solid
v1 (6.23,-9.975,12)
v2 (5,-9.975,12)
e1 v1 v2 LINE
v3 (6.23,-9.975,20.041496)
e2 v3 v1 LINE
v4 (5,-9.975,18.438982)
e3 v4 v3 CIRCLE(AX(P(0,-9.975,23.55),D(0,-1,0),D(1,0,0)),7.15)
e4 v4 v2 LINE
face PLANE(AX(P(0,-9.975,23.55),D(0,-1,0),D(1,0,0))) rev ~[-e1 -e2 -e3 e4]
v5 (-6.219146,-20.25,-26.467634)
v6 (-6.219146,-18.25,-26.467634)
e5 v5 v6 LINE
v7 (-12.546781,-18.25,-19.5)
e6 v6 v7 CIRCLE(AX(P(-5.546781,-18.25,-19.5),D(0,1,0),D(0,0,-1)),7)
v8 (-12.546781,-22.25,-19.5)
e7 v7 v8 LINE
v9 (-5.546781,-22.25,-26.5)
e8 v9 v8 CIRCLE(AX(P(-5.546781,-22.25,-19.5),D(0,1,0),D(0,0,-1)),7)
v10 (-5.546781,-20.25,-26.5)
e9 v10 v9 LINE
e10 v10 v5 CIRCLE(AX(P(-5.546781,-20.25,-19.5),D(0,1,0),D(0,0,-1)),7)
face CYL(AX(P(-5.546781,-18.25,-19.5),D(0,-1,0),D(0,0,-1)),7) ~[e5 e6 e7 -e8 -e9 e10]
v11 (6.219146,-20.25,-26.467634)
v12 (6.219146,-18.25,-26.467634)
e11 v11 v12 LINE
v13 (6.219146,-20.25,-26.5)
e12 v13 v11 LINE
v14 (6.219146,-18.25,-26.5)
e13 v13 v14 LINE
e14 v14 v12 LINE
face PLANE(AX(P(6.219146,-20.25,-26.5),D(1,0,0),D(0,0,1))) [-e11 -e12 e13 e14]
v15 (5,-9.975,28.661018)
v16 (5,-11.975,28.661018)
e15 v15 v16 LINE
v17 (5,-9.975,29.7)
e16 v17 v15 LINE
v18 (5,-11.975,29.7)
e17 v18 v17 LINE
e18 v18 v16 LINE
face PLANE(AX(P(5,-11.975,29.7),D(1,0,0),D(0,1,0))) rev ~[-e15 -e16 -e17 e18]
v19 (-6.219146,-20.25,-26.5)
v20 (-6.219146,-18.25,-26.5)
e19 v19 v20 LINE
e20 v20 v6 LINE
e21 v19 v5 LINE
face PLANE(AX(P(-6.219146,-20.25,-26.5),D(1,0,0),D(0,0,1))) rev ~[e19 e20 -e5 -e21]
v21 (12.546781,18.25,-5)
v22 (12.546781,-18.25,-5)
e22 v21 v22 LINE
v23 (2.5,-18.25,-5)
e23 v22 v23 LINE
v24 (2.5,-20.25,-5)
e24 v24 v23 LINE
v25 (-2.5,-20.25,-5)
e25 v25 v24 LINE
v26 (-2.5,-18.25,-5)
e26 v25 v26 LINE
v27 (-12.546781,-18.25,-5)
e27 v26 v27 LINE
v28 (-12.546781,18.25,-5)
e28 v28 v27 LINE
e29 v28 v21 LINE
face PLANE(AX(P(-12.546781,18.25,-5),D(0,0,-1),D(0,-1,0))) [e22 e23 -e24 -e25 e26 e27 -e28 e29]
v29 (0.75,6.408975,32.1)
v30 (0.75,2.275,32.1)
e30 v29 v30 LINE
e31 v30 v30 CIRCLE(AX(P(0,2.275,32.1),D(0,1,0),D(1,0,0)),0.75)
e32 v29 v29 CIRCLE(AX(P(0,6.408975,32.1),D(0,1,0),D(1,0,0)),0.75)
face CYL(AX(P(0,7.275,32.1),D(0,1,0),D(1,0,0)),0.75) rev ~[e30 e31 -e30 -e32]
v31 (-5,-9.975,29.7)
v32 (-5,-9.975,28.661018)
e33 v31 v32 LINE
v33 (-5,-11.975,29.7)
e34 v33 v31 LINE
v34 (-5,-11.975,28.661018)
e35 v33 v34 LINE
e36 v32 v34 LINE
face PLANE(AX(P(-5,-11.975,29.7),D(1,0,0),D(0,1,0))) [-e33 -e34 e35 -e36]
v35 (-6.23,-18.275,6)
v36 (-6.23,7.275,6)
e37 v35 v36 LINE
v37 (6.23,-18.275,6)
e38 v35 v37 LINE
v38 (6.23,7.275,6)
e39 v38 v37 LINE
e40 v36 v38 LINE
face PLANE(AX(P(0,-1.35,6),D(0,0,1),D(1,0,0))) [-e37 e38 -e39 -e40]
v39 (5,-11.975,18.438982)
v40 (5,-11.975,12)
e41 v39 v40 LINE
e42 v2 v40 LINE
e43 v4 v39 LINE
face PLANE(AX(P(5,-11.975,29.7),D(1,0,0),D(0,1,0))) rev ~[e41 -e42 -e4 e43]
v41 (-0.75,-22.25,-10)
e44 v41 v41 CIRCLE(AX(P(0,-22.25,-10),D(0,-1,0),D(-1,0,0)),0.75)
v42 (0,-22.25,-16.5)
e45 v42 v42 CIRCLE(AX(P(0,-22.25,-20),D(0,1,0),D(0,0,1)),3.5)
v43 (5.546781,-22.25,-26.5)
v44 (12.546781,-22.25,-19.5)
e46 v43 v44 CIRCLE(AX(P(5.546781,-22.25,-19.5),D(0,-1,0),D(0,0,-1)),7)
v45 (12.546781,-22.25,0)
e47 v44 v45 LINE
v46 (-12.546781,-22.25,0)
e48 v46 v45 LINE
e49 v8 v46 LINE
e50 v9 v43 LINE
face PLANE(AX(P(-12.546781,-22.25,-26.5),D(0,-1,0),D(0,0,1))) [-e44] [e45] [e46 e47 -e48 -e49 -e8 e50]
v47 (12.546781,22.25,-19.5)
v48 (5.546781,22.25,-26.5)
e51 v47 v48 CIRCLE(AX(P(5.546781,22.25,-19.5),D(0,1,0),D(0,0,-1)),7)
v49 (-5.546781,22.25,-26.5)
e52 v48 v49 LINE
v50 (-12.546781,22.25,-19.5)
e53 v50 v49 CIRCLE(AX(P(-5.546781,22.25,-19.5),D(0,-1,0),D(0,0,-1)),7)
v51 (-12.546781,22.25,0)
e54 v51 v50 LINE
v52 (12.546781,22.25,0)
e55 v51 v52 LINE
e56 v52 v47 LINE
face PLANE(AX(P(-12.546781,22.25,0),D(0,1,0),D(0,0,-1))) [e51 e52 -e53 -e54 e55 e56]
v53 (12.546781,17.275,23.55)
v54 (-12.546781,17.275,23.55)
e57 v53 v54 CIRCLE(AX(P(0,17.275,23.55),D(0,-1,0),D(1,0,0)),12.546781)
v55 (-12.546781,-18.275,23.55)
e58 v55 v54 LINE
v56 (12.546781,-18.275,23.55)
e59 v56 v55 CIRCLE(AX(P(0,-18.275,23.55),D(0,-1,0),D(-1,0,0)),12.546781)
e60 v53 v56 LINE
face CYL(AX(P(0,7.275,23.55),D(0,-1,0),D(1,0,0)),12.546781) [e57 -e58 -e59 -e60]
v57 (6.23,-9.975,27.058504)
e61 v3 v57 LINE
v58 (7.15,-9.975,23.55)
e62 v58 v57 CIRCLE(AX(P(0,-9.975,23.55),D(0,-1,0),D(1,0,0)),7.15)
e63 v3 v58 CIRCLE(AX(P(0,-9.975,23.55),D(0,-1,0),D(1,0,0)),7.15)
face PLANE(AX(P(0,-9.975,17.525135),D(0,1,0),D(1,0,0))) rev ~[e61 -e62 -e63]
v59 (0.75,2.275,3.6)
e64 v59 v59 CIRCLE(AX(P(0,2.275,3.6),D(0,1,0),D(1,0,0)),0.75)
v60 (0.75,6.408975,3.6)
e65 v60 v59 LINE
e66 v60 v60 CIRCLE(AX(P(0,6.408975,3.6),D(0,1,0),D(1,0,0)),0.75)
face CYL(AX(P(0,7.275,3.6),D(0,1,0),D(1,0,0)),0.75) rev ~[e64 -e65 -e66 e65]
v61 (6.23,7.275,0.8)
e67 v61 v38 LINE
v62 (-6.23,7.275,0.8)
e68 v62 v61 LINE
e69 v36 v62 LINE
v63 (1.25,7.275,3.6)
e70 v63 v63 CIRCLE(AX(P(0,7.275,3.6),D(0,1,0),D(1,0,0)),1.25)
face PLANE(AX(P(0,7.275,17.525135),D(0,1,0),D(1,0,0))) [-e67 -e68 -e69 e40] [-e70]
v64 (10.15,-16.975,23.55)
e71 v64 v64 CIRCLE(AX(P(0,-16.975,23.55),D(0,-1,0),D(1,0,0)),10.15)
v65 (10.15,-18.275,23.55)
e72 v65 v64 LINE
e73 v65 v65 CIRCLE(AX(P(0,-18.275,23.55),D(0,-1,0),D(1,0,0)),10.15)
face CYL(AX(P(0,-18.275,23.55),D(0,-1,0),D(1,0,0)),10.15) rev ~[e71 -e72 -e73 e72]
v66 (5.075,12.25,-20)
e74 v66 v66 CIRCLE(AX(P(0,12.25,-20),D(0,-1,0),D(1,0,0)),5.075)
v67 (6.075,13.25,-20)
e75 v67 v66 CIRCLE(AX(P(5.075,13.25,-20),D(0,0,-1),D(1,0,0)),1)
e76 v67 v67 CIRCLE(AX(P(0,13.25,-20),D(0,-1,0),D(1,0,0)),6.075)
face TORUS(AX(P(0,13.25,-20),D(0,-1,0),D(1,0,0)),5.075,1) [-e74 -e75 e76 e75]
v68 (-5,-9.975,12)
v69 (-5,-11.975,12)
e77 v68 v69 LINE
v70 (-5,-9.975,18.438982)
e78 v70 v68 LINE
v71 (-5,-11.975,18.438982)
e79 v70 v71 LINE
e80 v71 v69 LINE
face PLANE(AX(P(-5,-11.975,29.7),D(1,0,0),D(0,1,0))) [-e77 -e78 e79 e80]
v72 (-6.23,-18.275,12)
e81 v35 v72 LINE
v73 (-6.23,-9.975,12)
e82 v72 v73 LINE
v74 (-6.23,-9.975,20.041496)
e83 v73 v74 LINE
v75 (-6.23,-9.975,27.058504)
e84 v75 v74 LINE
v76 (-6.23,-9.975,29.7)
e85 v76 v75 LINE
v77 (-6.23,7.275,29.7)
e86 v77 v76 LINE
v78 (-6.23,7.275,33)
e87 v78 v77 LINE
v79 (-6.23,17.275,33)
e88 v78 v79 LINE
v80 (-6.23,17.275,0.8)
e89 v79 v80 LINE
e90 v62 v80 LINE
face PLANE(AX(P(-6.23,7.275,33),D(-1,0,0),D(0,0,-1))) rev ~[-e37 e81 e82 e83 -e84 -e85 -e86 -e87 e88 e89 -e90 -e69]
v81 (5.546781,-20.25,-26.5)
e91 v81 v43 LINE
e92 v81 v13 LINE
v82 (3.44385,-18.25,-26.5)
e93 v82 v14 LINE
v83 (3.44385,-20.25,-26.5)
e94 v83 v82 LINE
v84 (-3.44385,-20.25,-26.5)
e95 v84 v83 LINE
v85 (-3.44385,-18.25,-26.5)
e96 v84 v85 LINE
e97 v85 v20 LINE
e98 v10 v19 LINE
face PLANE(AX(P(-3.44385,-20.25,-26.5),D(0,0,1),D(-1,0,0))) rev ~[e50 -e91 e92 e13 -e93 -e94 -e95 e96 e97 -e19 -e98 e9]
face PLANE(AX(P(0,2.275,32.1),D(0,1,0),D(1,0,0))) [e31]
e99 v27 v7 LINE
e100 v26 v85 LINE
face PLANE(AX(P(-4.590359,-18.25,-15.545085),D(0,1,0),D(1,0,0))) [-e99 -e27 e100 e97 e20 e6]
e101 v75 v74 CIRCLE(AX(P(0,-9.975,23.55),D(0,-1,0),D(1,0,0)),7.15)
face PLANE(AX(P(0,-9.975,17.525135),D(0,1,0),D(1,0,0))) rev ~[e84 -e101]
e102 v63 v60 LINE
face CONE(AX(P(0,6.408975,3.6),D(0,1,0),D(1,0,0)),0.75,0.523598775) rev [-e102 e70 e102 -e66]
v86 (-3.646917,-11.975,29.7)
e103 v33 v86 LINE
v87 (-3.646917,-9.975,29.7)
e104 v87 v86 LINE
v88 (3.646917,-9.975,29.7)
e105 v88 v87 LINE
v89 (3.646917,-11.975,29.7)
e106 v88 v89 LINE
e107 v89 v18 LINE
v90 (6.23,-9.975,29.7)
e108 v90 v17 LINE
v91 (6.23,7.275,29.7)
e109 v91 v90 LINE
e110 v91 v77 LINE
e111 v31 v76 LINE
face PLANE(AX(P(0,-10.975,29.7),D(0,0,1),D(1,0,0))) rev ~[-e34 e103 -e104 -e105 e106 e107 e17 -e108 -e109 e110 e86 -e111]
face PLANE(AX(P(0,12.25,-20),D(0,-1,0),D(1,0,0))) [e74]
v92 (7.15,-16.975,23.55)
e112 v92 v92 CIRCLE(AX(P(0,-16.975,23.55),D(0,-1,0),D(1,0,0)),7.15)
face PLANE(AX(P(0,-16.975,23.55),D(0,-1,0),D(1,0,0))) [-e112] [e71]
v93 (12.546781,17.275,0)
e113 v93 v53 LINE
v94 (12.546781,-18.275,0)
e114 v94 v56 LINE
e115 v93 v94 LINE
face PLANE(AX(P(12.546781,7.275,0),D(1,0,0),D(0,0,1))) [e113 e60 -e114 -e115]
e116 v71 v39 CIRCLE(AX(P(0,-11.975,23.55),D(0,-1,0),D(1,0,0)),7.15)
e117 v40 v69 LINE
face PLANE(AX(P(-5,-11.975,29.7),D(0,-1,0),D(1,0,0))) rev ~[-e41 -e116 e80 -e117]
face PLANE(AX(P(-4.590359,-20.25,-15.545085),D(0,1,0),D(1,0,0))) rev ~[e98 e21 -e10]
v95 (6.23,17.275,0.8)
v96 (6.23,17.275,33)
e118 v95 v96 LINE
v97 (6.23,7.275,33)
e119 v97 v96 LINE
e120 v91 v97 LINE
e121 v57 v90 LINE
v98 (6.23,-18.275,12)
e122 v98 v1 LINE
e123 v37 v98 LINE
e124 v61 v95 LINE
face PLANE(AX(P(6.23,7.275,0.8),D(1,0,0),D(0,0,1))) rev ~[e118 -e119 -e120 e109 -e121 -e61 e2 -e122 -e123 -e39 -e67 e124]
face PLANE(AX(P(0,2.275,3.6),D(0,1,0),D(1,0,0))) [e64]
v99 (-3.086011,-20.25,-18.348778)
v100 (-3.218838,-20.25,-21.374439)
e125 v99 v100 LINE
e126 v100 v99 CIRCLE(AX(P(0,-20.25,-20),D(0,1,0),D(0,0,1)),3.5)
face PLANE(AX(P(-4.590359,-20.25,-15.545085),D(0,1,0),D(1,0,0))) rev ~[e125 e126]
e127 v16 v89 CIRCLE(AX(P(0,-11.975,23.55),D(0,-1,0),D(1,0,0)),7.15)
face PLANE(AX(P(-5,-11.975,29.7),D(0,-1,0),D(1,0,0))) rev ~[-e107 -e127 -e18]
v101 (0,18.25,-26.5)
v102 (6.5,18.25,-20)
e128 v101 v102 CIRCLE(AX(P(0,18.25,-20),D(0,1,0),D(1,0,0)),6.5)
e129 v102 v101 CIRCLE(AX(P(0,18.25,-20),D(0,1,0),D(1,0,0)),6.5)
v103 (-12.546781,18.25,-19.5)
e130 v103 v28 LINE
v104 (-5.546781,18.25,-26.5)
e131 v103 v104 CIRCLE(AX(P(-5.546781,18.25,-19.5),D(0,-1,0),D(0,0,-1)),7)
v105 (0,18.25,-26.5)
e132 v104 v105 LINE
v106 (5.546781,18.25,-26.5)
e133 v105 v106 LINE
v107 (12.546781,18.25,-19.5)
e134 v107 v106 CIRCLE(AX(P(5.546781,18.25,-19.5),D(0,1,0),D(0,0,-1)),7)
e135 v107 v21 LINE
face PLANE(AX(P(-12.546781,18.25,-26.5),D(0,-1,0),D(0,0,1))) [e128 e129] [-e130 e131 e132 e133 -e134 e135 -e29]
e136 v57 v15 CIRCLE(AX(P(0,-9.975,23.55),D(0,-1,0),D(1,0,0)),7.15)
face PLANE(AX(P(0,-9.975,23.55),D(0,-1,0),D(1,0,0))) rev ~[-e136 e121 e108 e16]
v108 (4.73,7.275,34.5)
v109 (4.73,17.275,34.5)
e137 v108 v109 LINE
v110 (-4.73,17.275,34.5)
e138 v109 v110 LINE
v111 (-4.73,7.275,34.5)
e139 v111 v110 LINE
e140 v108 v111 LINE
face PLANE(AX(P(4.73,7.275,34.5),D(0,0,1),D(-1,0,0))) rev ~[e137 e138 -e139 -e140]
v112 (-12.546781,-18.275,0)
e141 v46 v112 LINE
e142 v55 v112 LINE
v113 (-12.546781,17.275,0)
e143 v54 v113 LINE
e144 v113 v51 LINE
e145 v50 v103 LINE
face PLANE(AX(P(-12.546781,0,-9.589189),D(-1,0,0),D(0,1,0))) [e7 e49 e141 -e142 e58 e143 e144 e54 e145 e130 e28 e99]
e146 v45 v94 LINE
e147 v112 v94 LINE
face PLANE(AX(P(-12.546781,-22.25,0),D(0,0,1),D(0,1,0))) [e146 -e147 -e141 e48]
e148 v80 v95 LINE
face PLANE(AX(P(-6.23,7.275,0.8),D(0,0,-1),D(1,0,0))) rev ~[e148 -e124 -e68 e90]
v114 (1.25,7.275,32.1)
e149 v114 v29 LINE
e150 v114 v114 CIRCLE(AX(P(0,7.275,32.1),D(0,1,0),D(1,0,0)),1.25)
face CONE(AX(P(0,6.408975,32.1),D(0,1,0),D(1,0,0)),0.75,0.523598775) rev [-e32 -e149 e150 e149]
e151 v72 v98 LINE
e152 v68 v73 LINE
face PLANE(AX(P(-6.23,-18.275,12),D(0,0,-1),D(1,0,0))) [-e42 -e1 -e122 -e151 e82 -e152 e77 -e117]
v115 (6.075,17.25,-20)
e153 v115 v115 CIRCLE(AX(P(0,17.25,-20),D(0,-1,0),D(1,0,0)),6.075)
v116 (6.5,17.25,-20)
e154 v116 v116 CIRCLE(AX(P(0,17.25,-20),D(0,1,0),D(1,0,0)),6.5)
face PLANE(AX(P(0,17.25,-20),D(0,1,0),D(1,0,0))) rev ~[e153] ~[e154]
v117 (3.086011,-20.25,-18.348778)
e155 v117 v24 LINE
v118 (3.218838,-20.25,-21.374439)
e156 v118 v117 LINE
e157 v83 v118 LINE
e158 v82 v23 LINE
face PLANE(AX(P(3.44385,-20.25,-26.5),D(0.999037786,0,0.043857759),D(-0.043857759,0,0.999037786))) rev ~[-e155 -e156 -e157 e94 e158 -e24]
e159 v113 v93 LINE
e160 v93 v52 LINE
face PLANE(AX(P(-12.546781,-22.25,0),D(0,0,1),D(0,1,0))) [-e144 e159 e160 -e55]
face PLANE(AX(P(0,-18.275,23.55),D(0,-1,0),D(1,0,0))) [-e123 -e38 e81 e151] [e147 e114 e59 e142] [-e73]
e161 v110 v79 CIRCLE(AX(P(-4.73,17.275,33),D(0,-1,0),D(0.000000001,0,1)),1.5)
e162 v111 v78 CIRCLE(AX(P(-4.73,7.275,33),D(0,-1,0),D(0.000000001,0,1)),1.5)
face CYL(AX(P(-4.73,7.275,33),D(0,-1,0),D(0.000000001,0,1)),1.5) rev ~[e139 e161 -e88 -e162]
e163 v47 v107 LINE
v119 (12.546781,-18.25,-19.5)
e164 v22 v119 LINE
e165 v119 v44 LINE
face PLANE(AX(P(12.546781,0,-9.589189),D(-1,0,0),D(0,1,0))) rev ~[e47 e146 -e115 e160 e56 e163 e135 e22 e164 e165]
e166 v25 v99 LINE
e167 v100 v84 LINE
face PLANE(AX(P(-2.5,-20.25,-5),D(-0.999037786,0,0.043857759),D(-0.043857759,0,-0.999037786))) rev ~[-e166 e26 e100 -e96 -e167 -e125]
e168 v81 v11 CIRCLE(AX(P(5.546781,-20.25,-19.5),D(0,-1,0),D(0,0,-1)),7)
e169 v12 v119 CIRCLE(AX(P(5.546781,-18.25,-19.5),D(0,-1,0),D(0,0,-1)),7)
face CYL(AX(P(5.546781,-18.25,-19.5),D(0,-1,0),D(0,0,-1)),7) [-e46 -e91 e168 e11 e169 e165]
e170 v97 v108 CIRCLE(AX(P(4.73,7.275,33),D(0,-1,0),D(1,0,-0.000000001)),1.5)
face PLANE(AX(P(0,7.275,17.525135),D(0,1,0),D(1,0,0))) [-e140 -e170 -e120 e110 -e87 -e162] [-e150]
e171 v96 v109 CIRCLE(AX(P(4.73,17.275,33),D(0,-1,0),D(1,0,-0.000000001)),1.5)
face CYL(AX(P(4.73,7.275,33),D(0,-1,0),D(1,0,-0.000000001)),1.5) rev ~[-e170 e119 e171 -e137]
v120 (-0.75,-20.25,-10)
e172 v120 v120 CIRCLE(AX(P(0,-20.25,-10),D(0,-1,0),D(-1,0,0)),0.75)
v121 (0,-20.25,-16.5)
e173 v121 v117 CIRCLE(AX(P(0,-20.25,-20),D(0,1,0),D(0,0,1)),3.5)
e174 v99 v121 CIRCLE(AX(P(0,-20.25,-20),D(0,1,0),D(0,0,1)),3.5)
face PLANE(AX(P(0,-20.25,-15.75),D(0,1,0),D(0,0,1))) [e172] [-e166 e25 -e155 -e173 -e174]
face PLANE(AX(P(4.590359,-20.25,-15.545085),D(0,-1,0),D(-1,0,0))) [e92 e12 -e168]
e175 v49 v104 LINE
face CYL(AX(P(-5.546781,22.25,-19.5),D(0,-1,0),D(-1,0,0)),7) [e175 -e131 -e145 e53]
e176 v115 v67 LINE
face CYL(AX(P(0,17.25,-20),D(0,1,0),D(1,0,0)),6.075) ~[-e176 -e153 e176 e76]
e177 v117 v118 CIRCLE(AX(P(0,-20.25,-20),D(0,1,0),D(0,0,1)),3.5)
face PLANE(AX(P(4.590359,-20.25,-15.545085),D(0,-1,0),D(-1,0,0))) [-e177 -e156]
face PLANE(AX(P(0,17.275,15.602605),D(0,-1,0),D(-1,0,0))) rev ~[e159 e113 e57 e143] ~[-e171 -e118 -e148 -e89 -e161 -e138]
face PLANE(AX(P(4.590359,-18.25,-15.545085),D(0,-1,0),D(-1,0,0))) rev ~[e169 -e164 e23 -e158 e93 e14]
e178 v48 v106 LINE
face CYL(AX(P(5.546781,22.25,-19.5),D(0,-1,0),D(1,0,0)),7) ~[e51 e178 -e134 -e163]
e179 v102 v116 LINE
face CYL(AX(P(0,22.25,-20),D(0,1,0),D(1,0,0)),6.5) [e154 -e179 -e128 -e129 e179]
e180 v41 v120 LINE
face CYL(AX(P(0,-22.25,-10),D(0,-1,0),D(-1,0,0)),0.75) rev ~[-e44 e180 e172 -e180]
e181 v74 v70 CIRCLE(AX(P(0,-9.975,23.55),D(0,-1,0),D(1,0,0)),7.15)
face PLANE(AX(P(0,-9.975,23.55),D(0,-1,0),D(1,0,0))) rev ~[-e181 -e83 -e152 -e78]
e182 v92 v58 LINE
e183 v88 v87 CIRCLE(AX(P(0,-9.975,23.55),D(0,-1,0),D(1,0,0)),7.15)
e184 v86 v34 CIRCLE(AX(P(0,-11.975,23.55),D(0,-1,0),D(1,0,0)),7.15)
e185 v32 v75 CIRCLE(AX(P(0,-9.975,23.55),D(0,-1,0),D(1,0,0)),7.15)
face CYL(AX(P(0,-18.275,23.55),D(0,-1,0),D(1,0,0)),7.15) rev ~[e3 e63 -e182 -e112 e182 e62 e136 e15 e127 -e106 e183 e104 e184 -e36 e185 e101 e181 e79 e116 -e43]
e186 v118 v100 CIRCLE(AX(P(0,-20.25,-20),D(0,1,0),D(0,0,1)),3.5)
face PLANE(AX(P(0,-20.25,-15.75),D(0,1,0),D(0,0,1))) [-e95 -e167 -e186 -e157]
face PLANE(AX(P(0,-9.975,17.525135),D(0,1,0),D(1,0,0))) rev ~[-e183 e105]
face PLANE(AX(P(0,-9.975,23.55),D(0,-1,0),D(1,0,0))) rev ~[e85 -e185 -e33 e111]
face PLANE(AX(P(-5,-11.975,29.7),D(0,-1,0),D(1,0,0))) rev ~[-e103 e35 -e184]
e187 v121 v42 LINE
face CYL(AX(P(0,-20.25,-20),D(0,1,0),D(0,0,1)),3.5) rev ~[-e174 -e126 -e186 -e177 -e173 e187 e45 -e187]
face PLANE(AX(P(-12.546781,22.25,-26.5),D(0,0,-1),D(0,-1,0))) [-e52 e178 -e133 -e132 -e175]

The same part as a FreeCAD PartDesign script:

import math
import FreeCAD as App
import Part
import Sketcher

V = App.Vector


def edges_at(feature, points):
    """Names of the edges that pass closest to the given points."""
    edges = feature.Shape.Edges
    near = lambda p: min(range(len(edges)), key=lambda i: edges[i].distToShape(Part.Vertex(*p))[0])
    return sorted({f"Edge{near(p) + 1}" for p in points})


def add_polygon(sketch, points):
    """Adds a closed chain of lines whose ends are joined by coincident constraints."""
    first, n = sketch.GeometryCount, len(points)
    for a, b in zip(points, points[1:] + points[:1]):
        sketch.addGeometry(Part.LineSegment(App.Vector(*a, 0), App.Vector(*b, 0)), False)
    for i in range(n):
        sketch.addConstraint(Sketcher.Constraint("Coincident", first + i, 2, first + (i + 1) % n, 1))

doc = App.newDocument("Part")
body = doc.addObject("PartDesign::Body", "Body")

# Sketch on XY plane
sketch1 = doc.addObject("Sketcher::SketchObject", "Sketch")
body.addObject(sketch1)
sketch1.AttachmentSupport = (doc.XY_Plane, [""])
sketch1.MapMode = "FlatFace"
add_polygon(sketch1, [(-6, 7), (-6, -10), (6, -10), (6, 7)])  # lines 0-3
sketch1.addConstraint([
    Sketcher.Constraint("Vertical", 0),
    Sketcher.Constraint("Horizontal", 1),
    Sketcher.Constraint("Vertical", 2),
    Sketcher.Constraint("Horizontal", 3),
    Sketcher.Constraint("DistanceX", 1, 1, 1, 2, 12.46),
    Sketcher.Constraint("DistanceY", 0, 2, 0, 1, 17.25),
    Sketcher.Constraint("DistanceX", 0, 2, -1, 1, 6.23),
    Sketcher.Constraint("DistanceY", 0, 2, -1, 1, 9.975),
])
pad1 = doc.addObject("PartDesign::Pad", "Pad")
body.addObject(pad1)
pad1.Profile = sketch1
pad1.Length = 6
body2 = doc.addObject("PartDesign::Body", "Body001")

# Sketch on XZ plane
sketch2 = doc.addObject("Sketcher::SketchObject", "Sketch001")
body2.addObject(sketch2)
sketch2.AttachmentSupport = (doc.getObject("XZ_Plane001"), [""])
sketch2.MapMode = "FlatFace"
sketch2.AttachmentOffset = App.Placement(V(0, 0, 9.975), App.Rotation())
sketch2.addGeometry([
    Part.Circle(V(0, 24, 0), V(0, 0, 1), 13),
    Part.Circle(V(0, 24, 0), V(0, 0, 1), 11),
], False)
sketch2.addConstraint([
    Sketcher.Constraint("Coincident", 1, 3, 0, 3),
    Sketcher.Constraint("PointOnObject", 0, 3, -2),
    Sketcher.Constraint("Diameter", 1, 22.3),
    Sketcher.Constraint("DistanceY", -1, 1, 0, 3, 23.55),
    Sketcher.Constraint("Diameter", 0, 25.093562),
])
pad2 = doc.addObject("PartDesign::Pad", "Pad001")
body2.addObject(pad2)
pad2.Profile = sketch2
pad2.Type = "TwoLengths"
pad2.Length = 8.3
pad2.Length2 = 17.25
body.AllowCompound = True
doc.recompute()

boolean = doc.addObject("PartDesign::Boolean", "Boolean")
body.addObject(boolean)
boolean.Type = "Fuse"
boolean.addObjects([body2])

# Sketch on XZ plane
sketch3 = doc.addObject("Sketcher::SketchObject", "Sketch002")
body.addObject(sketch3)
sketch3.AttachmentSupport = (doc.XZ_Plane, [""])
sketch3.MapMode = "FlatFace"
sketch3.AttachmentOffset = App.Placement(V(0, 0, -7.275), App.Rotation())
sketch3.addGeometry([
    Part.LineSegment(V(13, 24, 0), V(13, 0, 0)),  # 0
    Part.LineSegment(V(13, 0, 0), V(6, 0, 0)),  # 1
    Part.LineSegment(V(6, 0, 0), V(6, 30, 0)),  # 2
    Part.LineSegment(V(6, 30, 0), V(-6, 30, 0)),  # 3
    Part.LineSegment(V(-6, 30, 0), V(-6, 0, 0)),  # 4
    Part.LineSegment(V(-6, 0, 0), V(-13, 0, 0)),  # 5
    Part.LineSegment(V(-13, 0, 0), V(-13, 24, 0)),  # 6
    Part.ArcOfCircle(Part.Circle(V(0, 24, 0), V(0, 0, 1), 13), math.radians(0), math.radians(180)),  # 7
], False)
sketch3.addConstraint([
    Sketcher.Constraint("Coincident", 0, 2, 1, 1),
    Sketcher.Constraint("Coincident", 1, 2, 2, 1),
    Sketcher.Constraint("Coincident", 2, 2, 3, 1),
    Sketcher.Constraint("Coincident", 3, 2, 4, 1),
    Sketcher.Constraint("Coincident", 4, 2, 5, 1),
    Sketcher.Constraint("Coincident", 5, 2, 6, 1),
    Sketcher.Constraint("Tangent", 6, 2, 7, 2),
    Sketcher.Constraint("Tangent", 7, 1, 0, 1),
    Sketcher.Constraint("Vertical", 0),
    Sketcher.Constraint("Horizontal", 1),
    Sketcher.Constraint("Vertical", 2),
    Sketcher.Constraint("Horizontal", 3),
    Sketcher.Constraint("Vertical", 4),
    Sketcher.Constraint("Horizontal", 5),
    Sketcher.Constraint("Vertical", 6),
    Sketcher.Constraint("Symmetric", 1, 2, 4, 2, -1, 1),
    Sketcher.Constraint("Symmetric", 0, 2, 5, 2, -2),
    Sketcher.Constraint("DistanceY", 2, 1, 2, 2, 29.7),
    Sketcher.Constraint("DistanceX", 3, 2, 3, 1, 12.46),
    Sketcher.Constraint("DistanceY", 0, 2, 0, 1, 23.55),
    Sketcher.Constraint("Radius", 7, 12.546781),
])
pad3 = doc.addObject("PartDesign::Pad", "Pad002")
body.addObject(pad3)
pad3.Profile = sketch3
pad3.Length = 17.25

# Sketch on XZ plane
sketch4 = doc.addObject("Sketcher::SketchObject", "Sketch003")
body.addObject(sketch4)
sketch4.AttachmentSupport = (doc.XZ_Plane, [""])
sketch4.MapMode = "FlatFace"
sketch4.AttachmentOffset = App.Placement(V(0, 0, -7.275), App.Rotation())
sketch4.addGeometry([
    Part.Circle(V(0, 3.6, 0), V(0, 0, 1), 0.8),
    Part.Circle(V(0, 32.1, 0), V(0, 0, 1), 0.8),
], False)
sketch4.addConstraint([
    Sketcher.Constraint("Equal", 0, 1),
    Sketcher.Constraint("PointOnObject", 0, 3, -2),
    Sketcher.Constraint("PointOnObject", 1, 3, -2),
    Sketcher.Constraint("Diameter", 0, 1.5),
    Sketcher.Constraint("DistanceY", -1, 1, 0, 3, 3.6),
    Sketcher.Constraint("DistanceY", -1, 1, 1, 3, 32.1),
])
pocket1 = doc.addObject("PartDesign::Pocket", "Pocket")
body.addObject(pocket1)
pocket1.Profile = sketch4
pocket1.Length = 5
pocket1.Reversed = True
doc.recompute()

chamfer = doc.addObject("PartDesign::Chamfer", "Chamfer")
body.addObject(chamfer)
chamfer.Base = (pocket1, edges_at(pocket1, [(-0.75, 7.275, 3.6), (-0.75, 7.275, 32.1)]))
chamfer.ChamferType = "Two distances"
chamfer.Size = 0.5
chamfer.Size2 = 0.866025

# Sketch on XZ plane
sketch5 = doc.addObject("Sketcher::SketchObject", "Sketch004")
body.addObject(sketch5)
sketch5.AttachmentSupport = (doc.XZ_Plane, [""])
sketch5.MapMode = "FlatFace"
sketch5.AttachmentOffset = App.Placement(V(0, 0, -7.275), App.Rotation())
add_polygon(sketch5, [(-6, 6), (-6, 30), (6, 30), (6, 6)])  # lines 0-3
sketch5.addConstraint([
    Sketcher.Constraint("Vertical", 0),
    Sketcher.Constraint("Horizontal", 1),
    Sketcher.Constraint("Vertical", 2),
    Sketcher.Constraint("Horizontal", 3),
    Sketcher.Constraint("DistanceY", 0, 1, 0, 2, 23.7),
    Sketcher.Constraint("DistanceY", -1, 1, 2, 2, 6.0),
    Sketcher.Constraint("DistanceX", 1, 1, 1, 2, 12.46),
    Sketcher.Constraint("DistanceX", 0, 2, -1, 1, 6.23),
])
pocket2 = doc.addObject("PartDesign::Pocket", "Pocket001")
body.addObject(pocket2)
pocket2.Profile = sketch5
pocket2.Length = 17.25
pocket2.Reversed = True

# Sketch on XZ plane
sketch6 = doc.addObject("Sketcher::SketchObject", "Sketch005")
body.addObject(sketch6)
sketch6.AttachmentSupport = (doc.XZ_Plane, [""])
sketch6.MapMode = "FlatFace"
sketch6.AttachmentOffset = App.Placement(V(0, 0, 18.275), App.Rotation())
sketch6.addGeometry([
    Part.LineSegment(V(-13, 24, 0), V(-13, 0, 0)),
    Part.LineSegment(V(-13, 0, 0), V(13, 0, 0)),
    Part.LineSegment(V(13, 0, 0), V(13, 24, 0)),
    Part.ArcOfCircle(Part.Circle(V(0, 24, 0), V(0, 0, 1), 13), math.radians(180), math.radians(360)),
], False)
sketch6.addConstraint([
    Sketcher.Constraint("Coincident", 0, 2, 1, 1),
    Sketcher.Constraint("Coincident", 1, 2, 2, 1),
    Sketcher.Constraint("Tangent", 2, 2, 3, 2),
    Sketcher.Constraint("Tangent", 3, 1, 0, 1),
    Sketcher.Constraint("Vertical", 0),
    Sketcher.Constraint("Horizontal", 1),
    Sketcher.Constraint("Vertical", 2),
    Sketcher.Constraint("Symmetric", 0, 2, 1, 2, -1, 1),
    Sketcher.Constraint("DistanceY", 0, 2, 0, 1, 23.55),
    Sketcher.Constraint("Radius", 3, 12.546781),
])
pad4 = doc.addObject("PartDesign::Pad", "Pad003")
body.addObject(pad4)
pad4.Profile = sketch6
pad4.Length = 8.3
pad4.Reversed = True

# Sketch on XZ plane
sketch7 = doc.addObject("Sketcher::SketchObject", "Sketch006")
body.addObject(sketch7)
sketch7.AttachmentSupport = (doc.XZ_Plane, [""])
sketch7.MapMode = "FlatFace"
sketch7.AttachmentOffset = App.Placement(V(0, 0, -7.275), App.Rotation())
sketch7.addGeometry([
    Part.LineSegment(V(12.5, 0, 0), V(-12.5, 0, 0)),  # 0
    Part.LineSegment(V(-12.5, 0, 0), V(-12.5, 23.6, 0)),  # 1
    Part.ArcOfCircle(Part.Circle(V(0, 23.6, 0), V(0, 0, 1), 12.5), math.radians(0), math.radians(180)),  # 2
    Part.LineSegment(V(12.5, 23.6, 0), V(12.5, 0, 0)),  # 3
    Part.LineSegment(V(-6.2, 0.8, 0), V(6.2, 0.8, 0)),  # 4
    Part.LineSegment(V(6.2, 0.8, 0), V(6.2, 33, 0)),  # 5
    Part.ArcOfCircle(Part.Circle(V(4.7, 33, 0), V(0, 0, 1), 1.5), math.radians(0), math.radians(90)),  # 6
    Part.LineSegment(V(4.7, 34.5, 0), V(-4.7, 34.5, 0)),  # 7
    Part.ArcOfCircle(Part.Circle(V(-4.7, 33, 0), V(0, 0, 1), 1.5), math.radians(90), math.radians(180)),  # 8
    Part.LineSegment(V(-6.2, 33, 0), V(-6.2, 0.8, 0)),  # 9
], False)
sketch7.addConstraint([
    Sketcher.Constraint("Coincident", 0, 2, 1, 1),
    Sketcher.Constraint("Tangent", 1, 2, 2, 2),
    Sketcher.Constraint("Tangent", 2, 1, 3, 1),
    Sketcher.Constraint("Coincident", 3, 2, 0, 1),
    Sketcher.Constraint("Coincident", 4, 2, 5, 1),
    Sketcher.Constraint("Tangent", 5, 2, 6, 1),
    Sketcher.Constraint("Tangent", 6, 2, 7, 1),
    Sketcher.Constraint("Tangent", 7, 2, 8, 1),
    Sketcher.Constraint("Tangent", 8, 2, 9, 1),
    Sketcher.Constraint("Coincident", 9, 2, 4, 1),
    Sketcher.Constraint("Horizontal", 0),
    Sketcher.Constraint("Vertical", 1),
    Sketcher.Constraint("Vertical", 3),
    Sketcher.Constraint("Horizontal", 4),
    Sketcher.Constraint("Vertical", 5),
    Sketcher.Constraint("Horizontal", 7),
    Sketcher.Constraint("Vertical", 9),
    Sketcher.Constraint("Equal", 6, 8),
    Sketcher.Constraint("Symmetric", 0, 2, 3, 2, -1, 1),
    Sketcher.Constraint("Radius", 6, 1.5),
    Sketcher.Constraint("DistanceY", 5, 1, 5, 2, 32.2),
    Sketcher.Constraint("DistanceY", -1, 1, 6, 3, 33.0),
    Sketcher.Constraint("DistanceX", 4, 1, 4, 2, 12.46),
    Sketcher.Constraint("DistanceY", 1, 1, 1, 2, 23.55),
    Sketcher.Constraint("DistanceX", -1, 1, 6, 3, 4.73),
    Sketcher.Constraint("Radius", 2, 12.546781),
])
pad5 = doc.addObject("PartDesign::Pad", "Pad004")
body.addObject(pad5)
pad5.Profile = sketch7
pad5.Length = 10
pad5.Reversed = True

# Sketch on XZ plane
sketch8 = doc.addObject("Sketcher::SketchObject", "Sketch007")
body.addObject(sketch8)
sketch8.AttachmentSupport = (doc.XZ_Plane, [""])
sketch8.MapMode = "FlatFace"
sketch8.AttachmentOffset = App.Placement(V(0, 0, 18.275), App.Rotation())
sketch8.addGeometry([
    Part.Circle(V(0, 24, 0), V(0, 0, 1), 11),
    Part.Circle(V(0, 24, 0), V(0, 0, 1), 7),
], False)
sketch8.addConstraint([
    Sketcher.Constraint("Coincident", 1, 3, 0, 3),
    Sketcher.Constraint("PointOnObject", 0, 3, -2),
    Sketcher.Constraint("Diameter", 0, 22.3),
    Sketcher.Constraint("Diameter", 1, 14.3),
    Sketcher.Constraint("DistanceY", -1, 1, 0, 3, 23.55),
])
pad6 = doc.addObject("PartDesign::Pad", "Pad005")
body.addObject(pad6)
pad6.Profile = sketch8
pad6.Length = 8.3
pad6.Reversed = True

# Sketch on XZ plane
sketch9 = doc.addObject("Sketcher::SketchObject", "Sketch008")
body.addObject(sketch9)
sketch9.AttachmentSupport = (doc.XZ_Plane, [""])
sketch9.MapMode = "FlatFace"
sketch9.AttachmentOffset = App.Placement(V(0, 0, 18.275), App.Rotation())
sketch9.addGeometry([
    Part.Circle(V(0, 24, 0), V(0, 0, 1), 10),
    Part.Circle(V(0, 24, 0), V(0, 0, 1), 7),
], False)
sketch9.addConstraint([
    Sketcher.Constraint("Coincident", 1, 3, 0, 3),
    Sketcher.Constraint("PointOnObject", 0, 3, -2),
    Sketcher.Constraint("Diameter", 0, 20.3),
    Sketcher.Constraint("Diameter", 1, 14.3),
    Sketcher.Constraint("DistanceY", -1, 1, 0, 3, 23.55),
])
pocket3 = doc.addObject("PartDesign::Pocket", "Pocket002")
body.addObject(pocket3)
pocket3.Profile = sketch9
pocket3.Length = 1.3

# Sketch on XY plane
sketch10 = doc.addObject("Sketcher::SketchObject", "Sketch009")
body.addObject(sketch10)
sketch10.AttachmentSupport = (doc.XY_Plane, [""])
sketch10.MapMode = "FlatFace"
sketch10.AttachmentOffset = App.Placement(V(0, 0, 29.7), App.Rotation())
add_polygon(sketch10, [(-5, -10), (-5, -12), (5, -12), (5, -10)])  # lines 0-3
sketch10.addConstraint([
    Sketcher.Constraint("Vertical", 0),
    Sketcher.Constraint("Horizontal", 1),
    Sketcher.Constraint("Vertical", 2),
    Sketcher.Constraint("Horizontal", 3),
    Sketcher.Constraint("DistanceX", 1, 1, 1, 2, 10.0),
    Sketcher.Constraint("DistanceY", 0, 2, 0, 1, 2.0),
    Sketcher.Constraint("DistanceX", 0, 2, -1, 1, 5.0),
    Sketcher.Constraint("DistanceY", 0, 2, -1, 1, 11.975),
])
pocket4 = doc.addObject("PartDesign::Pocket", "Pocket003")
body.addObject(pocket4)
pocket4.Profile = sketch10
pocket4.Length = 23.7

# Sketch on XZ plane
sketch11 = doc.addObject("Sketcher::SketchObject", "Sketch010")
body.addObject(sketch11)
sketch11.AttachmentSupport = (doc.XZ_Plane, [""])
sketch11.MapMode = "FlatFace"
sketch11.AttachmentOffset = App.Placement(V(0, 0, 18.275), App.Rotation())
add_polygon(sketch11, [(-6, 12), (-6, 6), (6, 6), (6, 12)])  # lines 0-3
sketch11.addConstraint([
    Sketcher.Constraint("Vertical", 0),
    Sketcher.Constraint("Horizontal", 1),
    Sketcher.Constraint("Vertical", 2),
    Sketcher.Constraint("Horizontal", 3),
    Sketcher.Constraint("DistanceY", 0, 2, 0, 1, 6.0),
    Sketcher.Constraint("DistanceY", -1, 1, 0, 2, 6.0),
    Sketcher.Constraint("DistanceX", 1, 1, 1, 2, 12.46),
    Sketcher.Constraint("DistanceX", 0, 2, -1, 1, 6.23),
])
pocket5 = doc.addObject("PartDesign::Pocket", "Pocket004")
body.addObject(pocket5)
pocket5.Profile = sketch11
pocket5.Length = 8.3

# Sketch on YZ plane
sketch12 = doc.addObject("Sketcher::SketchObject", "Sketch011")
body.addObject(sketch12)
sketch12.AttachmentSupport = (doc.YZ_Plane, [""])
sketch12.MapMode = "FlatFace"
sketch12.AttachmentOffset = App.Placement(V(0, 0, -12.546781), App.Rotation())
add_polygon(sketch12, [(-22.2, 0), (-22.2, -26.5), (-18.2, -26.5), (-18.2, -5), (18.2, -5), (18.2, -26.5), (22.2, -26.5), (22.2, 0)])  # lines 0-7
sketch12.addConstraint([
    Sketcher.Constraint("Vertical", 0),
    Sketcher.Constraint("Horizontal", 1),
    Sketcher.Constraint("Vertical", 2),
    Sketcher.Constraint("Horizontal", 3),
    Sketcher.Constraint("Vertical", 4),
    Sketcher.Constraint("Horizontal", 5),
    Sketcher.Constraint("Vertical", 6),
    Sketcher.Constraint("Horizontal", 7),
    Sketcher.Constraint("Symmetric", 6, 2, 7, 2, -1, 1),
    Sketcher.Constraint("Symmetric", 1, 2, 4, 2, -2),
    Sketcher.Constraint("DistanceX", 1, 1, 1, 2, 4.0),
    Sketcher.Constraint("DistanceX", 3, 1, 3, 2, 36.5),
    Sketcher.Constraint("DistanceY", 0, 2, 0, 1, 26.5),
    Sketcher.Constraint("DistanceY", 2, 1, 2, 2, 21.5),
])
pad7 = doc.addObject("PartDesign::Pad", "Pad006")
body.addObject(pad7)
pad7.Profile = sketch12
pad7.Length = 25.093562

# Sketch on XZ plane
sketch13 = doc.addObject("Sketcher::SketchObject", "Sketch012")
body.addObject(sketch13)
sketch13.AttachmentSupport = (doc.XZ_Plane, [""])
sketch13.MapMode = "FlatFace"
sketch13.AttachmentOffset = App.Placement(V(0, 0, 18.25), App.Rotation())
add_polygon(sketch13, [(6, -26), (-6, -26), (-6, -5), (6, -5)])  # lines 0-3
sketch13.addConstraint([
    Sketcher.Constraint("Horizontal", 0),
    Sketcher.Constraint("Vertical", 1),
    Sketcher.Constraint("Horizontal", 2),
    Sketcher.Constraint("Vertical", 3),
    Sketcher.Constraint("DistanceY", 1, 1, 1, 2, 21.5),
    Sketcher.Constraint("DistanceY", 1, 2, -1, 1, 5.0),
    Sketcher.Constraint("DistanceX", 0, 2, 0, 1, 12.438293),
    Sketcher.Constraint("DistanceX", 0, 2, -1, 1, 6.219146),
])
pocket6 = doc.addObject("PartDesign::Pocket", "Pocket005")
body.addObject(pocket6)
pocket6.Profile = sketch13
pocket6.Length = 2
pocket6.Reversed = True

# Sketch on XZ plane
sketch14 = doc.addObject("Sketcher::SketchObject", "Sketch013")
body.addObject(sketch14)
sketch14.AttachmentSupport = (doc.XZ_Plane, [""])
sketch14.MapMode = "FlatFace"
sketch14.AttachmentOffset = App.Placement(V(0, 0, 20.25), App.Rotation())
sketch14.addGeometry(Part.Circle(V(0, -20, 0), V(0, 0, 1), 3.5), False)
sketch14.addConstraint([
    Sketcher.Constraint("PointOnObject", 0, 3, -2),
    Sketcher.Constraint("Diameter", 0, 7.0),
    Sketcher.Constraint("DistanceY", 0, 3, -1, 1, 20.0),
])
pocket7 = doc.addObject("PartDesign::Pocket", "Pocket006")
body.addObject(pocket7)
pocket7.Profile = sketch14
pocket7.Type = "ThroughAll"
pocket7.Midplane = True
doc.recompute()

fillet = doc.addObject("PartDesign::Fillet", "Fillet")
body.addObject(fillet)
fillet.Base = (pocket7, edges_at(pocket7, [
    (12.547, -20.25, -26.5),
    (-12.547, -20.25, -26.5),
    (12.547, 20.25, -26.5),
    (-12.547, 20.25, -26.5),
]))
fillet.Radius = 7

# Sketch on XZ plane
sketch15 = doc.addObject("Sketcher::SketchObject", "Sketch014")
body.addObject(sketch15)
sketch15.AttachmentSupport = (doc.XZ_Plane, [""])
sketch15.MapMode = "FlatFace"
sketch15.AttachmentOffset = App.Placement(V(0, 0, -22.25), App.Rotation())
sketch15.addGeometry(Part.Circle(V(0, -20, 0), V(0, 0, 1), 6), False)
sketch15.addConstraint([
    Sketcher.Constraint("PointOnObject", 0, 3, -2),
    Sketcher.Constraint("Diameter", 0, 13.0),
    Sketcher.Constraint("DistanceY", 0, 3, -1, 1, 20.0),
])
pad8 = doc.addObject("PartDesign::Pad", "Pad007")
body.addObject(pad8)
pad8.Profile = sketch15
pad8.Length = 5

# Sketch on XZ plane
sketch16 = doc.addObject("Sketcher::SketchObject", "Sketch015")
body.addObject(sketch16)
sketch16.AttachmentSupport = (doc.XZ_Plane, [""])
sketch16.MapMode = "FlatFace"
sketch16.AttachmentOffset = App.Placement(V(0, 0, -17.25), App.Rotation())
sketch16.addGeometry(Part.Circle(V(0, -20, 0), V(0, 0, 1), 6), False)
sketch16.addConstraint([
    Sketcher.Constraint("PointOnObject", 0, 3, -2),
    Sketcher.Constraint("Diameter", 0, 12.15),
    Sketcher.Constraint("DistanceY", 0, 3, -1, 1, 20.0),
])
pad9 = doc.addObject("PartDesign::Pad", "Pad008")
body.addObject(pad9)
pad9.Profile = sketch16
pad9.Length = 5
doc.recompute()

fillet2 = doc.addObject("PartDesign::Fillet", "Fillet001")
body.addObject(fillet2)
fillet2.Base = (pad9, edges_at(pad9, [(-6.075, 12.25, -20)]))
fillet2.Radius = 1

# Sketch on XZ plane
sketch17 = doc.addObject("Sketcher::SketchObject", "Sketch016")
body.addObject(sketch17)
sketch17.AttachmentSupport = (doc.XZ_Plane, [""])
sketch17.MapMode = "FlatFace"
sketch17.AttachmentOffset = App.Placement(V(0, 0, 20.25), App.Rotation())
add_polygon(sketch17, [(-6.2, -5), (-2.5, -5), (-3.4, -26.5), (-6.2, -26.5)])  # lines 0-3
add_polygon(sketch17, [(2.5, -5), (6.2, -5), (6.2, -26.5), (3.4, -26.5)])  # lines 4-7
sketch17.addConstraint([
    Sketcher.Constraint("Horizontal", 0),
    Sketcher.Constraint("Horizontal", 2),
    Sketcher.Constraint("Vertical", 3),
    Sketcher.Constraint("Horizontal", 4),
    Sketcher.Constraint("Vertical", 5),
    Sketcher.Constraint("Horizontal", 6),
    Sketcher.Constraint("Symmetric", 3, 2, 4, 2, -2),
    Sketcher.Constraint("Symmetric", 1, 2, 6, 2, -2),
    Sketcher.Constraint("Equal", 0, 4),
    Sketcher.Constraint("DistanceY", 3, 1, 3, 2, 21.5),
    Sketcher.Constraint("DistanceY", 0, 2, -1, 1, 5.0),
    Sketcher.Constraint("DistanceX", 0, 2, 7, 2, 5.0),
    Sketcher.Constraint("DistanceX", 1, 2, 6, 2, 6.8877),
    Sketcher.Constraint("DistanceX", 0, 1, 0, 2, 3.719146),
])
pad10 = doc.addObject("PartDesign::Pad", "Pad009")
body.addObject(pad10)
pad10.Profile = sketch17
pad10.Length = 2
pad10.Reversed = True

# Sketch on XZ plane
sketch18 = doc.addObject("Sketcher::SketchObject", "Sketch017")
body.addObject(sketch18)
sketch18.AttachmentSupport = (doc.XZ_Plane, [""])
sketch18.MapMode = "FlatFace"
sketch18.AttachmentOffset = App.Placement(V(0, 0, 22.25), App.Rotation())
sketch18.addGeometry(Part.Circle(V(0, -10, 0), V(0, 0, 1), 0.8), False)
sketch18.addConstraint([
    Sketcher.Constraint("PointOnObject", 0, 3, -2),
    Sketcher.Constraint("Diameter", 0, 1.5),
    Sketcher.Constraint("DistanceY", 0, 3, -1, 1, 10.0),
])
pocket8 = doc.addObject("PartDesign::Pocket", "Pocket007")
body.addObject(pocket8)
pocket8.Profile = sketch18
pocket8.Type = "UpToFirst"

doc.recompute()
